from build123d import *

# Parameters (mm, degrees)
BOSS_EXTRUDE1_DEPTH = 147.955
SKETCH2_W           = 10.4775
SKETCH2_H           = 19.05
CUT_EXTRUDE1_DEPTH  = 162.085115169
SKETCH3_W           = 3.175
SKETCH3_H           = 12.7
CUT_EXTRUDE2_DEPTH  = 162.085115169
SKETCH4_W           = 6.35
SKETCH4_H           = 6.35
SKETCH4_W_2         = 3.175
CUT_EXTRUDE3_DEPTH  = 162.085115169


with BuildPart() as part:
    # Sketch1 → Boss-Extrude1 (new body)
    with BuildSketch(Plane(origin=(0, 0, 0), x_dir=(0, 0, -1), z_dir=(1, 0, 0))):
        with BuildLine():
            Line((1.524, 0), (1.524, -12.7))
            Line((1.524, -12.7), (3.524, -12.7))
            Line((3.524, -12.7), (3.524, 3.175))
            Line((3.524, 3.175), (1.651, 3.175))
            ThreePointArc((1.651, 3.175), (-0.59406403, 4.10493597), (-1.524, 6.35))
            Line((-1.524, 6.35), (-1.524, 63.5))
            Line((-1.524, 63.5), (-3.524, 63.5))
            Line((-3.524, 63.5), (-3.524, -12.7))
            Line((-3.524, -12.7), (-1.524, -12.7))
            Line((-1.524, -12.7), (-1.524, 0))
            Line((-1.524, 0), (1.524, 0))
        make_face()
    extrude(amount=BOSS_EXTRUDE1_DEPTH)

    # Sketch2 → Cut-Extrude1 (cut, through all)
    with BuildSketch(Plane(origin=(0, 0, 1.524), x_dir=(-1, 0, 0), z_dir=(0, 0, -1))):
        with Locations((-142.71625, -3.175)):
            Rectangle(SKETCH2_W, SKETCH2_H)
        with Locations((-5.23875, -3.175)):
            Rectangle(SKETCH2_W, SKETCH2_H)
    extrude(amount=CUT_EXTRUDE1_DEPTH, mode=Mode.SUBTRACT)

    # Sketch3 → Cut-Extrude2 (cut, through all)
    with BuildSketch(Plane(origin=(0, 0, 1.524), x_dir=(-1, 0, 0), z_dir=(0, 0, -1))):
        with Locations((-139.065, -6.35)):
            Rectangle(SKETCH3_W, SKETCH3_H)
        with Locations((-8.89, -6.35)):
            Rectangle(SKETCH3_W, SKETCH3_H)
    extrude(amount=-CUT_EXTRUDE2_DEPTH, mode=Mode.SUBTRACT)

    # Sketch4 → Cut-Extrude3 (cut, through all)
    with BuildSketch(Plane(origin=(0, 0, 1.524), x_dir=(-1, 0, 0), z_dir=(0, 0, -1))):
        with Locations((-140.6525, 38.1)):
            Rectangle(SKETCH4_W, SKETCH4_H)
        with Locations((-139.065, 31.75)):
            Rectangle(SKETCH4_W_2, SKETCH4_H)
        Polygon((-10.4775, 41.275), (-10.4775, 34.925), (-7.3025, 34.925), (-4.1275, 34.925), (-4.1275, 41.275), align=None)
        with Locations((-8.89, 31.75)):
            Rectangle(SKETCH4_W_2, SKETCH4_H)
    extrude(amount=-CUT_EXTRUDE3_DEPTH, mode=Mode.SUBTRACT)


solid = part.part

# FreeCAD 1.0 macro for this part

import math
import FreeCAD as App
import Part
import Sketcher
from FreeCAD import Vector
Q = App.Units.Quantity


def add_polygon(sketch, points):
    """Adds a closed chain of lines whose ends are joined by coincident constraints."""
    first, n = sketch.GeometryCount, len(points)
    for a, b in zip(points, points[1:] + points[:1]):
        sketch.addGeometry(Part.LineSegment(App.Vector(*a, 0), App.Vector(*b, 0)), False)
    for i in range(n):
        sketch.addConstraint(Sketcher.Constraint("Coincident", first + i, 2, first + (i + 1) % n, 1))

doc = App.newDocument("Part")
body = doc.addObject("PartDesign::Body", "Body")

sketch1 = body.newObject("Sketcher::SketchObject", "Sketch")
sketch1.AttachmentSupport = (doc.getObject("YZ_Plane"), [""])
sketch1.MapMode = "FlatFace"
sketch1.addGeometry(Part.LineSegment(Vector(0, -1.524, 0), Vector(-12.7, -1.524, 0)), False)
sketch1.addGeometry(Part.LineSegment(Vector(-12.7, -1.524, 0), Vector(-12.7, -3.524, 0)), False)
sketch1.addGeometry(Part.LineSegment(Vector(-12.7, -3.524, 0), Vector(3.175, -3.524, 0)), False)
sketch1.addGeometry(Part.LineSegment(Vector(3.175, -3.524, 0), Vector(3.175, -1.651, 0)), False)
sketch1.addGeometry(Part.ArcOfCircle(Part.Circle(Vector(6.35, -1.651, 0), Vector(0, 0, 1), 3.175), math.radians(90), math.radians(180)), False)
sketch1.addGeometry(Part.LineSegment(Vector(6.35, 1.524, 0), Vector(63.5, 1.524, 0)), False)
sketch1.addGeometry(Part.LineSegment(Vector(63.5, 1.524, 0), Vector(63.5, 3.524, 0)), False)
sketch1.addGeometry(Part.LineSegment(Vector(63.5, 3.524, 0), Vector(-12.7, 3.524, 0)), False)
sketch1.addGeometry(Part.LineSegment(Vector(-12.7, 3.524, 0), Vector(-12.7, 1.524, 0)), False)
sketch1.addGeometry(Part.LineSegment(Vector(-12.7, 1.524, 0), Vector(0, 1.524, 0)), False)
sketch1.addGeometry(Part.LineSegment(Vector(0, 1.524, 0), Vector(0, -1.524, 0)), False)
sketch1.addConstraint(Sketcher.Constraint("Coincident", 0, 2, 1, 1))
sketch1.addConstraint(Sketcher.Constraint("Coincident", 1, 2, 2, 1))
sketch1.addConstraint(Sketcher.Constraint("Coincident", 2, 2, 3, 1))
sketch1.addConstraint(Sketcher.Constraint("Tangent", 3, 2, 4, 2))
sketch1.addConstraint(Sketcher.Constraint("Tangent", 4, 1, 5, 1))
sketch1.addConstraint(Sketcher.Constraint("Coincident", 5, 2, 6, 1))
sketch1.addConstraint(Sketcher.Constraint("Coincident", 6, 2, 7, 1))
sketch1.addConstraint(Sketcher.Constraint("Coincident", 7, 2, 8, 1))
sketch1.addConstraint(Sketcher.Constraint("Coincident", 8, 2, 9, 1))
sketch1.addConstraint(Sketcher.Constraint("Coincident", 9, 2, 10, 1))
sketch1.addConstraint(Sketcher.Constraint("Coincident", 10, 2, 0, 1))
sketch1.addConstraint(Sketcher.Constraint("Horizontal", 0))
sketch1.addConstraint(Sketcher.Constraint("Vertical", 1))
sketch1.addConstraint(Sketcher.Constraint("Horizontal", 2))
sketch1.addConstraint(Sketcher.Constraint("Vertical", 3))
sketch1.addConstraint(Sketcher.Constraint("Horizontal", 5))
sketch1.addConstraint(Sketcher.Constraint("Vertical", 6))
sketch1.addConstraint(Sketcher.Constraint("Horizontal", 7))
sketch1.addConstraint(Sketcher.Constraint("Vertical", 8))
sketch1.addConstraint(Sketcher.Constraint("Horizontal", 9))
sketch1.addConstraint(Sketcher.Constraint("Vertical", 10))
sketch1.addConstraint(Sketcher.Constraint("Symmetric", 9, 2, 10, 2, -1, 1))
sketch1.addConstraint(Sketcher.Constraint("Symmetric", 1, 2, 7, 2, -1))
sketch1.addConstraint(Sketcher.Constraint("Horizontal", 5, 2, 8, 2))
sketch1.addConstraint(Sketcher.Constraint("DistanceX", 7, 2, 7, 1, Q("3 in")))
sketch1.addConstraint(Sketcher.Constraint("DistanceX", 0, 2, 0, 1, Q("0.5 in")))
sketch1.addConstraint(Sketcher.Constraint("Radius", 4, Q("0.125 in")))
sketch1.addConstraint(Sketcher.Constraint("DistanceX", 5, 1, 5, 2, Q("2.25 in")))
sketch1.addConstraint(Sketcher.Constraint("DistanceY", 10, 2, 10, 1, Q("0.12 in")))
sketch1.addConstraint(Sketcher.Constraint("DistanceY", 1, 2, 1, 1, Q("2 mm")))
pad1 = body.newObject("PartDesign::Pad", "Pad")
pad1.Profile = sketch1
pad1.Length = Q("5.825 in")

sketch2 = body.newObject("Sketcher::SketchObject", "Sketch001")
sketch2.AttachmentSupport = (doc.getObject("XY_Plane"), [""])
sketch2.MapMode = "FlatFace"
sketch2.AttachmentOffset = App.Placement(Vector(0, 0, 0.06 * 25.4), App.Rotation())
add_polygon(sketch2, [(147.955, 6.35), (147.955, -12.7), (137.4775, -12.7), (137.4775, 6.35)])
add_polygon(sketch2, [(10.4775, 6.35), (10.4775, -12.7), (0, -12.7), (0, 6.35)])
sketch2.addConstraint(Sketcher.Constraint("Vertical", 0))
sketch2.addConstraint(Sketcher.Constraint("Horizontal", 1))
sketch2.addConstraint(Sketcher.Constraint("Vertical", 2))
sketch2.addConstraint(Sketcher.Constraint("Horizontal", 3))
sketch2.addConstraint(Sketcher.Constraint("Vertical", 4))
sketch2.addConstraint(Sketcher.Constraint("Horizontal", 5))
sketch2.addConstraint(Sketcher.Constraint("Vertical", 6))
sketch2.addConstraint(Sketcher.Constraint("Horizontal", 7))
sketch2.addConstraint(Sketcher.Constraint("PointOnObject", 5, 2, -2))
sketch2.addConstraint(Sketcher.Constraint("Horizontal", 1, 2, 4, 2))
sketch2.addConstraint(Sketcher.Constraint("Horizontal", 3, 2, 6, 2))
sketch2.addConstraint(Sketcher.Constraint("Equal", 3, 5))
sketch2.addConstraint(Sketcher.Constraint("DistanceX", 4, 2, 1, 2, Q("5 in")))
sketch2.addConstraint(Sketcher.Constraint("DistanceY", 0, 2, 0, 1, Q("0.75 in")))
sketch2.addConstraint(Sketcher.Constraint("DistanceY", 0, 2, -1, 1, Q("0.5 in")))
sketch2.addConstraint(Sketcher.Constraint("DistanceX", 1, 2, 1, 1, Q("0.4125 in")))
pocket1 = body.newObject("PartDesign::Pocket", "Pocket")
pocket1.Profile = sketch2
pocket1.Type = "ThroughAll"

sketch3 = body.newObject("Sketcher::SketchObject", "Sketch002")
sketch3.AttachmentSupport = (doc.getObject("XY_Plane"), [""])
sketch3.MapMode = "FlatFace"
sketch3.AttachmentOffset = App.Placement(Vector(0, 0, 0.06 * 25.4), App.Rotation())
add_polygon(sketch3, [(140.6525, 0), (140.6525, -12.7), (137.4775, -12.7), (137.4775, 0)])
add_polygon(sketch3, [(10.4775, 0), (10.4775, -12.7), (7.3025, -12.7), (7.3025, 0)])
sketch3.addConstraint(Sketcher.Constraint("Vertical", 0))
sketch3.addConstraint(Sketcher.Constraint("Horizontal", 1))
sketch3.addConstraint(Sketcher.Constraint("Vertical", 2))
sketch3.addConstraint(Sketcher.Constraint("Horizontal", 3))
sketch3.addConstraint(Sketcher.Constraint("Vertical", 4))
sketch3.addConstraint(Sketcher.Constraint("Horizontal", 5))
sketch3.addConstraint(Sketcher.Constraint("Vertical", 6))
sketch3.addConstraint(Sketcher.Constraint("Horizontal", 7))
sketch3.addConstraint(Sketcher.Constraint("PointOnObject", 2, 2, -1))
sketch3.addConstraint(Sketcher.Constraint("PointOnObject", 6, 2, -1))
sketch3.addConstraint(Sketcher.Constraint("Horizontal", 1, 2, 4, 2))
sketch3.addConstraint(Sketcher.Constraint("Equal", 3, 5))
sketch3.addConstraint(Sketcher.Constraint("DistanceY", 0, 2, 0, 1, Q("0.5 in")))
sketch3.addConstraint(Sketcher.Constraint("DistanceX", 4, 2, 1, 2, Q("5 in")))
sketch3.addConstraint(Sketcher.Constraint("DistanceX", 1, 2, 1, 1, Q("0.125 in")))
sketch3.addConstraint(Sketcher.Constraint("DistanceX", -1, 1, 0, 2, Q("5.5375 in")))
pocket2 = body.newObject("PartDesign::Pocket", "Pocket001")
pocket2.Profile = sketch3
pocket2.Type = "ThroughAll"
pocket2.Reversed = True

sketch4 = body.newObject("Sketcher::SketchObject", "Sketch003")
sketch4.AttachmentSupport = (doc.getObject("XY_Plane"), [""])
sketch4.MapMode = "FlatFace"
sketch4.AttachmentOffset = App.Placement(Vector(0, 0, 0.06 * 25.4), App.Rotation())
add_polygon(sketch4, [(143.8275, 41.275), (143.8275, 34.925), (140.6525, 34.925), (140.6525, 28.575), (137.4775, 28.575), (137.4775, 41.275)])
add_polygon(sketch4, [(10.4775, 41.275), (10.4775, 28.575), (7.3025, 28.575), (7.3025, 34.925), (4.1275, 34.925), (4.1275, 41.275)])
sketch4.addConstraint(Sketcher.Constraint("Vertical", 0))
sketch4.addConstraint(Sketcher.Constraint("Horizontal", 1))
sketch4.addConstraint(Sketcher.Constraint("Vertical", 2))
sketch4.addConstraint(Sketcher.Constraint("Horizontal", 3))
sketch4.addConstraint(Sketcher.Constraint("Vertical", 4))
sketch4.addConstraint(Sketcher.Constraint("Horizontal", 5))
sketch4.addConstraint(Sketcher.Constraint("Vertical", 6))
sketch4.addConstraint(Sketcher.Constraint("Horizontal", 7))
sketch4.addConstraint(Sketcher.Constraint("Vertical", 8))
sketch4.addConstraint(Sketcher.Constraint("Horizontal", 9))
sketch4.addConstraint(Sketcher.Constraint("Vertical", 10))
sketch4.addConstraint(Sketcher.Constraint("Horizontal", 11))
sketch4.addConstraint(Sketcher.Constraint("Horizontal", 3, 2, 6, 2))
sketch4.addConstraint(Sketcher.Constraint("Horizontal", 1, 2, 8, 2))
sketch4.addConstraint(Sketcher.Constraint("Horizontal", 5, 2, 10, 2))
sketch4.addConstraint(Sketcher.Constraint("Equal", 1, 3))
sketch4.addConstraint(Sketcher.Constraint("Equal", 3, 7))
sketch4.addConstraint(Sketcher.Constraint("Equal", 7, 9))
sketch4.addConstraint(Sketcher.Constraint("Equal", 11, 0))
sketch4.addConstraint(Sketcher.Constraint("Equal", 0, 2))
sketch4.addConstraint(Sketcher.Constraint("DistanceY", 4, 1, 4, 2, Q("0.5 in")))
sketch4.addConstraint(Sketcher.Constraint("DistanceX", 6, 2, 3, 2, Q("5 in")))
sketch4.addConstraint(Sketcher.Constraint("DistanceY", -1, 1, 0, 2, Q("1.375 in")))
sketch4.addConstraint(Sketcher.Constraint("DistanceX", -1, 1, 0, 2, Q("5.6625 in")))
pocket3 = body.newObject("PartDesign::Pocket", "Pocket002")
pocket3.Profile = sketch4
pocket3.Type = "ThroughAll"
pocket3.Reversed = True

doc.recompute()
